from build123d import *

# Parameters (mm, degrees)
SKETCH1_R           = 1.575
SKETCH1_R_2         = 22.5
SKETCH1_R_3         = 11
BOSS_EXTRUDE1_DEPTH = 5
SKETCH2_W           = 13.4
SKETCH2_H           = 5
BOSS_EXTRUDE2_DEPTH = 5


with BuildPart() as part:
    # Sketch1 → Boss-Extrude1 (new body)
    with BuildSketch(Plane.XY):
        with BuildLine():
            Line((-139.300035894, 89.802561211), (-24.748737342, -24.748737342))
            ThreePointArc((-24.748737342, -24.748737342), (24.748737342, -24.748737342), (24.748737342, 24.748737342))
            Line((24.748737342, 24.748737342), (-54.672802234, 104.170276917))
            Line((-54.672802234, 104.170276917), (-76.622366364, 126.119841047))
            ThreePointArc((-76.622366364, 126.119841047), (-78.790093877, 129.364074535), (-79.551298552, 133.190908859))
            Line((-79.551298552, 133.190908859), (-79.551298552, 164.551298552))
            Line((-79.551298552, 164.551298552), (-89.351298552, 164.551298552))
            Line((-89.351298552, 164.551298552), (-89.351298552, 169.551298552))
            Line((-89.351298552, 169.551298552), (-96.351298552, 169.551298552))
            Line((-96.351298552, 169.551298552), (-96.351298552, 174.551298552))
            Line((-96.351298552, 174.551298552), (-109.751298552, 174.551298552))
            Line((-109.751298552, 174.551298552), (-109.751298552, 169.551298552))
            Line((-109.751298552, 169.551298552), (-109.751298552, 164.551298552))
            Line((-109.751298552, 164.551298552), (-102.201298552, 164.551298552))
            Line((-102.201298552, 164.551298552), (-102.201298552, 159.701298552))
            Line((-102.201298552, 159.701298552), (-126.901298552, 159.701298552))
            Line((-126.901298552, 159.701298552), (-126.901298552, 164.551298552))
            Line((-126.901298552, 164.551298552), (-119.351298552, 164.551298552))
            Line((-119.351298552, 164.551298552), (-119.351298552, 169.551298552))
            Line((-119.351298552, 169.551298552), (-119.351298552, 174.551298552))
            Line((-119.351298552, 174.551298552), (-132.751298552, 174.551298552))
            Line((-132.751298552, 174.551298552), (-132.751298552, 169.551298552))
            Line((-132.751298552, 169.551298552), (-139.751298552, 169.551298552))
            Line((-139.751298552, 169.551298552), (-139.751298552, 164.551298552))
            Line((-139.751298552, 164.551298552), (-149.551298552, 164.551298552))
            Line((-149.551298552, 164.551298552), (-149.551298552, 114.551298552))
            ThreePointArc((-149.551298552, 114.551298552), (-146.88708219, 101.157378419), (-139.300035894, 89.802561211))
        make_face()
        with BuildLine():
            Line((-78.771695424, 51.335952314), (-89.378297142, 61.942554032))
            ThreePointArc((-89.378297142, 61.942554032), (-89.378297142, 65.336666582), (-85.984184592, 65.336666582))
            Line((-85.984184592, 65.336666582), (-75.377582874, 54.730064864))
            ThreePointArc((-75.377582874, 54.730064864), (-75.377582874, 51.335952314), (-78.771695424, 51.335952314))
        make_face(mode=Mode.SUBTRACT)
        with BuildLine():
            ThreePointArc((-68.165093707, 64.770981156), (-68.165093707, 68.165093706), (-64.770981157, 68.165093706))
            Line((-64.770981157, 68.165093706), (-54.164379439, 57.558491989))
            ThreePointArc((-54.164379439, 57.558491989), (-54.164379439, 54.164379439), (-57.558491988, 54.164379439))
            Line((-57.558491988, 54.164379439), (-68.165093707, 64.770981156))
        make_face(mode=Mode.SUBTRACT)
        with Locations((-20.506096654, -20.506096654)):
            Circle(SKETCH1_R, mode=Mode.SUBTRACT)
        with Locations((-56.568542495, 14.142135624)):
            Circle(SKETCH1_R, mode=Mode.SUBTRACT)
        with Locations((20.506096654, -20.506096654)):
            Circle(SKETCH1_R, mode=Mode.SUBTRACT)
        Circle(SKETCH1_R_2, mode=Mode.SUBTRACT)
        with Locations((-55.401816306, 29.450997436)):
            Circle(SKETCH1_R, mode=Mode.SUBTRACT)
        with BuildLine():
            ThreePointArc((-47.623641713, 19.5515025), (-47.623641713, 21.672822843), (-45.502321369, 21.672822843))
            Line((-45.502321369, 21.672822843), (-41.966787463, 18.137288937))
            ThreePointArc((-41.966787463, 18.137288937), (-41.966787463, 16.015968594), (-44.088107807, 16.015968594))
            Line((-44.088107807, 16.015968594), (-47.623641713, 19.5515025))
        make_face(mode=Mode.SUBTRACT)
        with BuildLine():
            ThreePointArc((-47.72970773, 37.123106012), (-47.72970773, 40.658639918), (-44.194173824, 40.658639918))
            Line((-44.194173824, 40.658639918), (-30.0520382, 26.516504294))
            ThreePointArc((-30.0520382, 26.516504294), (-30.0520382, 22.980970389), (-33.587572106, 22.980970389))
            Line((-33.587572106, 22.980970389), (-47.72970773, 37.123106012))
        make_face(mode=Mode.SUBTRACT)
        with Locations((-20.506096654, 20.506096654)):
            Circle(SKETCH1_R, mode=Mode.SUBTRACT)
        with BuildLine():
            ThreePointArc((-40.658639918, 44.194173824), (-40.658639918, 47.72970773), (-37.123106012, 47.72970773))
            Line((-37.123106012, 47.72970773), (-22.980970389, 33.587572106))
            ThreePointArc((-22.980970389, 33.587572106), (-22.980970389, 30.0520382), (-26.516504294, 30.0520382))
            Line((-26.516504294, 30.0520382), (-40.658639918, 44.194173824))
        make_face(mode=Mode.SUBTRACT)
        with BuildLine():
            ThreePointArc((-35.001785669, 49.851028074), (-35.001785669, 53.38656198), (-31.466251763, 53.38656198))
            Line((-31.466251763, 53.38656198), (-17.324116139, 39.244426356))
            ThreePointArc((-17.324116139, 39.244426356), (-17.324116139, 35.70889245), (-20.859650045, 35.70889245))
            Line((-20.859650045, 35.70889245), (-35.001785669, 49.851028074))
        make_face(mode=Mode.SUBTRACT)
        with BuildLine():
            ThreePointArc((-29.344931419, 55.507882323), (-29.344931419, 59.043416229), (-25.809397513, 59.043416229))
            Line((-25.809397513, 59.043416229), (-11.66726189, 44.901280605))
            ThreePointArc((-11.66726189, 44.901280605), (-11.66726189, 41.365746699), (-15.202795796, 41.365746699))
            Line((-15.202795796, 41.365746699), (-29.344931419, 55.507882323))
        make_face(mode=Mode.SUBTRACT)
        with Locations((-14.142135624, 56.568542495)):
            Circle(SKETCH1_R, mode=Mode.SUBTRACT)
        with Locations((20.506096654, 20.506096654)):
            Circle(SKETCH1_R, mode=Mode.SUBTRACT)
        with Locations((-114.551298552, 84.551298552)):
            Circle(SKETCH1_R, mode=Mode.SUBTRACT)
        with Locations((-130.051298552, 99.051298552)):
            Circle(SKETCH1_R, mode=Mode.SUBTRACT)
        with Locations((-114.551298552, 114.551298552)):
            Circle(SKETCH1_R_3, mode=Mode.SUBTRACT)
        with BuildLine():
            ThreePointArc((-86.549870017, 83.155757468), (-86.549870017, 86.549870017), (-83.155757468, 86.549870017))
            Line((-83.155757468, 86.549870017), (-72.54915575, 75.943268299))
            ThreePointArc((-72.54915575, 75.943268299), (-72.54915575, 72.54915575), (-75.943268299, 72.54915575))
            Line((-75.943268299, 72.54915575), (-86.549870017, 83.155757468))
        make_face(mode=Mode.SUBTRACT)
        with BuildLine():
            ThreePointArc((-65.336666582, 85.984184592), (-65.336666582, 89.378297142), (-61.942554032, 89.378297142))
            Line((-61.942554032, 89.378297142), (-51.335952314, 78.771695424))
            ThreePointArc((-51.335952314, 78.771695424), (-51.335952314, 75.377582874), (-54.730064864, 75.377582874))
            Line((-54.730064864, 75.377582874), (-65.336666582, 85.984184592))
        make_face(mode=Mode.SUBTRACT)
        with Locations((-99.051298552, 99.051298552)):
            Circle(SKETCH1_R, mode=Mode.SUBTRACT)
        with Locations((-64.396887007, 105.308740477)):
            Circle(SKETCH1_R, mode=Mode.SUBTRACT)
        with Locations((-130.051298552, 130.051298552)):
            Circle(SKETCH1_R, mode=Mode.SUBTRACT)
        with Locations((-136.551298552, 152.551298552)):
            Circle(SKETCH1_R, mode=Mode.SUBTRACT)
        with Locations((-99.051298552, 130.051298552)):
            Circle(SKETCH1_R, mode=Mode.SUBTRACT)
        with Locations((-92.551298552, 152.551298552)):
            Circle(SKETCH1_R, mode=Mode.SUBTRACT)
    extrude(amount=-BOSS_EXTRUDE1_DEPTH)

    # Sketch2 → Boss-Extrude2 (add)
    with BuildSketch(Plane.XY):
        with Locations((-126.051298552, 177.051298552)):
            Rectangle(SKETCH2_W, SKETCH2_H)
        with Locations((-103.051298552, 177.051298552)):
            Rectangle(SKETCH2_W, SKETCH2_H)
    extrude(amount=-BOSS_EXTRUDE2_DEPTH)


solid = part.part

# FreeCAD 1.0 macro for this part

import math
import FreeCAD as App
import Part
import Sketcher

V = App.Vector
Q = App.Units.Quantity

doc = App.newDocument("Part")
body = doc.addObject("PartDesign::Body", "Body")

sketch1 = doc.addObject("Sketcher::SketchObject", "Sketch")
body.addObject(sketch1)
sketch1.AttachmentSupport = (doc.XY_Plane, [""])
sketch1.MapMode = "FlatFace"
sketch1.addGeometry([
    Part.LineSegment(V(-139.3, 89.8, 0), V(-24.7, -24.7, 0)),
    Part.ArcOfCircle(Part.Circle(V(0, 0, 0), V(0, 0, 1), 35), math.radians(-135), math.radians(45)),
    Part.LineSegment(V(24.7, 24.7, 0), V(-54.7, 104.2, 0)),
    Part.LineSegment(V(-54.7, 104.2, 0), V(-76.6, 126.1, 0)),
    Part.ArcOfCircle(Part.Circle(V(-69.6, 133.2, 0), V(0, 0, 1), 10), math.radians(180), math.radians(225)),
    Part.LineSegment(V(-79.6, 133.2, 0), V(-79.6, 164.6, 0)),
    Part.LineSegment(V(-79.6, 164.6, 0), V(-89.4, 164.6, 0)),
    Part.LineSegment(V(-89.4, 164.6, 0), V(-89.4, 169.6, 0)),
    Part.LineSegment(V(-89.4, 169.6, 0), V(-96.4, 169.6, 0)),
    Part.LineSegment(V(-96.4, 169.6, 0), V(-96.4, 174.6, 0)),
    Part.LineSegment(V(-96.4, 174.6, 0), V(-109.8, 174.6, 0)),
    Part.LineSegment(V(-109.8, 174.6, 0), V(-109.8, 164.6, 0)),
    Part.LineSegment(V(-109.8, 164.6, 0), V(-102.2, 164.6, 0)),
    Part.LineSegment(V(-102.2, 164.6, 0), V(-102.2, 159.7, 0)),
    Part.LineSegment(V(-102.2, 159.7, 0), V(-126.9, 159.7, 0)),
    Part.LineSegment(V(-126.9, 159.7, 0), V(-126.9, 164.6, 0)),
    Part.LineSegment(V(-126.9, 164.6, 0), V(-119.4, 164.6, 0)),
    Part.LineSegment(V(-119.4, 164.6, 0), V(-119.4, 174.6, 0)),
    Part.LineSegment(V(-119.4, 174.6, 0), V(-132.8, 174.6, 0)),
    Part.LineSegment(V(-132.8, 174.6, 0), V(-132.8, 169.6, 0)),
    Part.LineSegment(V(-132.8, 169.6, 0), V(-139.8, 169.6, 0)),
    Part.LineSegment(V(-139.8, 169.6, 0), V(-139.8, 164.6, 0)),
    Part.LineSegment(V(-139.8, 164.6, 0), V(-149.6, 164.6, 0)),
    Part.LineSegment(V(-149.6, 164.6, 0), V(-149.6, 114.6, 0)),
    Part.ArcOfCircle(Part.Circle(V(-114.6, 114.6, 0), V(0, 0, 1), 35), math.radians(180), math.radians(225)),
    Part.ArcOfCircle(Part.Circle(V(-77.1, 53, 0), V(0, 0, 1), 2.4), math.radians(-135), math.radians(45)),
    Part.LineSegment(V(-78.8, 51.3, 0), V(-89.4, 61.9, 0)),
    Part.ArcOfCircle(Part.Circle(V(-87.7, 63.6, 0), V(0, 0, 1), 2.4), math.radians(45), math.radians(225)),
    Part.LineSegment(V(-86, 65.3, 0), V(-75.4, 54.7, 0)),
    Part.LineSegment(V(-57.6, 54.2, 0), V(-68.2, 64.8, 0)),
    Part.ArcOfCircle(Part.Circle(V(-66.5, 66.5, 0), V(0, 0, 1), 2.4), math.radians(45), math.radians(225)),
    Part.LineSegment(V(-64.8, 68.2, 0), V(-54.2, 57.6, 0)),
    Part.ArcOfCircle(Part.Circle(V(-55.9, 55.9, 0), V(0, 0, 1), 2.4), math.radians(-135), math.radians(45)),
    Part.Circle(V(-20.5, -20.5, 0), V(0, 0, 1), 1.6),
    Part.Circle(V(-56.6, 14.1, 0), V(0, 0, 1), 1.6),
    Part.LineSegment(V(-44.1, 16, 0), V(-47.6, 19.6, 0)),
    Part.ArcOfCircle(Part.Circle(V(-46.6, 20.6, 0), V(0, 0, 1), 1.5), math.radians(45), math.radians(225)),
    Part.LineSegment(V(-45.5, 21.7, 0), V(-42, 18.1, 0)),
    Part.ArcOfCircle(Part.Circle(V(-43, 17.1, 0), V(0, 0, 1), 1.5), math.radians(-135), math.radians(45)),
    Part.Circle(V(-20.5, 20.5, 0), V(0, 0, 1), 1.6),
    Part.Circle(V(20.5, -20.5, 0), V(0, 0, 1), 1.6),
    Part.Circle(V(0, 0, 0), V(0, 0, 1), 22.5),
    Part.Circle(V(20.5, 20.5, 0), V(0, 0, 1), 1.6),
    Part.Circle(V(-55.4, 29.5, 0), V(0, 0, 1), 1.6),
    Part.LineSegment(V(-33.6, 23, 0), V(-47.7, 37.1, 0)),
    Part.ArcOfCircle(Part.Circle(V(-46, 38.9, 0), V(0, 0, 1), 2.5), math.radians(45), math.radians(225)),
    Part.LineSegment(V(-44.2, 40.7, 0), V(-30.1, 26.5, 0)),
    Part.ArcOfCircle(Part.Circle(V(-31.8, 24.7, 0), V(0, 0, 1), 2.5), math.radians(-135), math.radians(45)),
    Part.LineSegment(V(-26.5, 30.1, 0), V(-40.7, 44.2, 0)),
    Part.ArcOfCircle(Part.Circle(V(-38.9, 46, 0), V(0, 0, 1), 2.5), math.radians(45), math.radians(225)),
    Part.LineSegment(V(-37.1, 47.7, 0), V(-23, 33.6, 0)),
    Part.ArcOfCircle(Part.Circle(V(-24.7, 31.8, 0), V(0, 0, 1), 2.5), math.radians(-135), math.radians(45)),
    Part.LineSegment(V(-20.9, 35.7, 0), V(-35, 49.9, 0)),
    Part.ArcOfCircle(Part.Circle(V(-33.2, 51.6, 0), V(0, 0, 1), 2.5), math.radians(45), math.radians(225)),
    Part.LineSegment(V(-31.5, 53.4, 0), V(-17.3, 39.2, 0)),
    Part.ArcOfCircle(Part.Circle(V(-19.1, 37.5, 0), V(0, 0, 1), 2.5), math.radians(-135), math.radians(45)),
    Part.LineSegment(V(-15.2, 41.4, 0), V(-29.3, 55.5, 0)),
    Part.ArcOfCircle(Part.Circle(V(-27.6, 57.3, 0), V(0, 0, 1), 2.5), math.radians(45), math.radians(225)),
    Part.LineSegment(V(-25.8, 59, 0), V(-11.7, 44.9, 0)),
    Part.ArcOfCircle(Part.Circle(V(-13.4, 43.1, 0), V(0, 0, 1), 2.5), math.radians(-135), math.radians(45)),
    Part.Circle(V(-14.1, 56.6, 0), V(0, 0, 1), 1.6),
    Part.Circle(V(-114.6, 84.6, 0), V(0, 0, 1), 1.6),
    Part.Circle(V(-130.1, 99.1, 0), V(0, 0, 1), 1.6),
    Part.Circle(V(-99.1, 99.1, 0), V(0, 0, 1), 1.6),
    Part.LineSegment(V(-75.9, 72.5, 0), V(-86.5, 83.2, 0)),
    Part.ArcOfCircle(Part.Circle(V(-84.9, 84.9, 0), V(0, 0, 1), 2.4), math.radians(45), math.radians(225)),
    Part.LineSegment(V(-83.2, 86.5, 0), V(-72.5, 75.9, 0)),
    Part.ArcOfCircle(Part.Circle(V(-74.2, 74.2, 0), V(0, 0, 1), 2.4), math.radians(-135), math.radians(45)),
    Part.LineSegment(V(-54.7, 75.4, 0), V(-65.3, 86, 0)),
    Part.ArcOfCircle(Part.Circle(V(-63.6, 87.7, 0), V(0, 0, 1), 2.4), math.radians(45), math.radians(225)),
    Part.LineSegment(V(-61.9, 89.4, 0), V(-51.3, 78.8, 0)),
    Part.ArcOfCircle(Part.Circle(V(-53, 77.1, 0), V(0, 0, 1), 2.4), math.radians(-135), math.radians(45)),
    Part.Circle(V(-64.4, 105.3, 0), V(0, 0, 1), 1.6),
    Part.Circle(V(-130.1, 130.1, 0), V(0, 0, 1), 1.6),
    Part.Circle(V(-114.6, 114.6, 0), V(0, 0, 1), 11),
    Part.Circle(V(-99.1, 130.1, 0), V(0, 0, 1), 1.6),
    Part.Circle(V(-136.6, 152.6, 0), V(0, 0, 1), 1.6),
    Part.Circle(V(-92.6, 152.6, 0), V(0, 0, 1), 1.6),
], False)
sketch1.addConstraint([
    Sketcher.Constraint("Tangent", 0, 2, 1, 1),
    Sketcher.Constraint("Tangent", 1, 2, 2, 1),
    Sketcher.Constraint("Coincident", 2, 2, 3, 1),
    Sketcher.Constraint("Tangent", 3, 2, 4, 2),
    Sketcher.Constraint("Tangent", 4, 1, 5, 1),
    Sketcher.Constraint("Coincident", 5, 2, 6, 1),
    Sketcher.Constraint("Coincident", 6, 2, 7, 1),
    Sketcher.Constraint("Coincident", 7, 2, 8, 1),
    Sketcher.Constraint("Coincident", 8, 2, 9, 1),
    Sketcher.Constraint("Coincident", 9, 2, 10, 1),
    Sketcher.Constraint("Coincident", 10, 2, 11, 1),
    Sketcher.Constraint("Coincident", 11, 2, 12, 1),
    Sketcher.Constraint("Coincident", 12, 2, 13, 1),
    Sketcher.Constraint("Coincident", 13, 2, 14, 1),
    Sketcher.Constraint("Coincident", 14, 2, 15, 1),
    Sketcher.Constraint("Coincident", 15, 2, 16, 1),
    Sketcher.Constraint("Coincident", 16, 2, 17, 1),
    Sketcher.Constraint("Coincident", 17, 2, 18, 1),
    Sketcher.Constraint("Coincident", 18, 2, 19, 1),
    Sketcher.Constraint("Coincident", 19, 2, 20, 1),
    Sketcher.Constraint("Coincident", 20, 2, 21, 1),
    Sketcher.Constraint("Coincident", 21, 2, 22, 1),
    Sketcher.Constraint("Coincident", 22, 2, 23, 1),
    Sketcher.Constraint("Tangent", 23, 2, 24, 1),
    Sketcher.Constraint("Tangent", 24, 2, 0, 1),
    Sketcher.Constraint("Tangent", 25, 1, 26, 1),
    Sketcher.Constraint("Tangent", 26, 2, 27, 2),
    Sketcher.Constraint("Tangent", 27, 1, 28, 1),
    Sketcher.Constraint("Tangent", 28, 2, 25, 2),
    Sketcher.Constraint("Tangent", 29, 2, 30, 2),
    Sketcher.Constraint("Tangent", 30, 1, 31, 1),
    Sketcher.Constraint("Tangent", 31, 2, 32, 2),
    Sketcher.Constraint("Tangent", 32, 1, 29, 1),
    Sketcher.Constraint("Tangent", 35, 2, 36, 2),
    Sketcher.Constraint("Tangent", 36, 1, 37, 1),
    Sketcher.Constraint("Tangent", 37, 2, 38, 2),
    Sketcher.Constraint("Tangent", 38, 1, 35, 1),
    Sketcher.Constraint("Tangent", 44, 2, 45, 2),
    Sketcher.Constraint("Tangent", 45, 1, 46, 1),
    Sketcher.Constraint("Tangent", 46, 2, 47, 2),
    Sketcher.Constraint("Tangent", 47, 1, 44, 1),
    Sketcher.Constraint("Tangent", 48, 2, 49, 2),
    Sketcher.Constraint("Tangent", 49, 1, 50, 1),
    Sketcher.Constraint("Tangent", 50, 2, 51, 2),
    Sketcher.Constraint("Tangent", 51, 1, 48, 1),
    Sketcher.Constraint("Tangent", 52, 2, 53, 2),
    Sketcher.Constraint("Tangent", 53, 1, 54, 1),
    Sketcher.Constraint("Tangent", 54, 2, 55, 2),
    Sketcher.Constraint("Tangent", 55, 1, 52, 1),
    Sketcher.Constraint("Tangent", 56, 2, 57, 2),
    Sketcher.Constraint("Tangent", 57, 1, 58, 1),
    Sketcher.Constraint("Tangent", 58, 2, 59, 2),
    Sketcher.Constraint("Tangent", 59, 1, 56, 1),
    Sketcher.Constraint("Tangent", 64, 2, 65, 2),
    Sketcher.Constraint("Tangent", 65, 1, 66, 1),
    Sketcher.Constraint("Tangent", 66, 2, 67, 2),
    Sketcher.Constraint("Tangent", 67, 1, 64, 1),
    Sketcher.Constraint("Tangent", 68, 2, 69, 2),
    Sketcher.Constraint("Tangent", 69, 1, 70, 1),
    Sketcher.Constraint("Tangent", 70, 2, 71, 2),
    Sketcher.Constraint("Tangent", 71, 1, 68, 1),
    Sketcher.Constraint("Vertical", 5),
    Sketcher.Constraint("Horizontal", 6),
    Sketcher.Constraint("Vertical", 7),
    Sketcher.Constraint("Horizontal", 8),
    Sketcher.Constraint("Vertical", 9),
    Sketcher.Constraint("Horizontal", 10),
    Sketcher.Constraint("Vertical", 11),
    Sketcher.Constraint("Horizontal", 12),
    Sketcher.Constraint("Vertical", 13),
    Sketcher.Constraint("Horizontal", 14),
    Sketcher.Constraint("Vertical", 15),
    Sketcher.Constraint("Horizontal", 16),
    Sketcher.Constraint("Vertical", 17),
    Sketcher.Constraint("Horizontal", 18),
    Sketcher.Constraint("Vertical", 19),
    Sketcher.Constraint("Horizontal", 20),
    Sketcher.Constraint("Vertical", 21),
    Sketcher.Constraint("Horizontal", 22),
    Sketcher.Constraint("Vertical", 23),
    Sketcher.Constraint("Coincident", 1, 3, -1, 1),
    Sketcher.Constraint("Coincident", 41, 3, -1, 1),
    Sketcher.Constraint("Coincident", 74, 3, 24, 3),
    Sketcher.Constraint("Equal", 1, 24),
    Sketcher.Constraint("Equal", 25, 27),
    Sketcher.Constraint("Equal", 27, 30),
    Sketcher.Constraint("Equal", 30, 32),
    Sketcher.Constraint("Equal", 33, 34),
    Sketcher.Constraint("Equal", 36, 38),
    Sketcher.Constraint("Equal", 34, 39),
    Sketcher.Constraint("Equal", 39, 40),
    Sketcher.Constraint("Equal", 40, 42),
    Sketcher.Constraint("Equal", 42, 43),
    Sketcher.Constraint("Equal", 45, 47),
    Sketcher.Constraint("Equal", 47, 49),
    Sketcher.Constraint("Equal", 49, 51),
    Sketcher.Constraint("Equal", 51, 53),
    Sketcher.Constraint("Equal", 53, 55),
    Sketcher.Constraint("Equal", 55, 57),
    Sketcher.Constraint("Equal", 57, 59),
    Sketcher.Constraint("Equal", 43, 60),
    Sketcher.Constraint("Equal", 60, 61),
    Sketcher.Constraint("Equal", 61, 62),
    Sketcher.Constraint("Equal", 62, 63),
    Sketcher.Constraint("Equal", 32, 65),
    Sketcher.Constraint("Equal", 65, 67),
    Sketcher.Constraint("Equal", 67, 69),
    Sketcher.Constraint("Equal", 69, 71),
    Sketcher.Constraint("Equal", 63, 72),
    Sketcher.Constraint("Equal", 72, 73),
    Sketcher.Constraint("Equal", 73, 75),
    Sketcher.Constraint("Equal", 75, 76),
    Sketcher.Constraint("Equal", 76, 77),
    Sketcher.Constraint("Symmetric", 39, 3, 40, 3, -1, 1),
    Sketcher.Constraint("Symmetric", 33, 3, 42, 3, -1, 1),
    Sketcher.Constraint("Symmetric", 33, 3, 40, 3, -2),
    Sketcher.Constraint("Parallel", 0, 2),
    Sketcher.Constraint("Parallel", 2, 3),
    Sketcher.Constraint("Parallel", 3, 26),
    Sketcher.Constraint("Parallel", 28, 29),
    Sketcher.Constraint("Parallel", 31, 35),
    Sketcher.Constraint("Parallel", 37, 44),
    Sketcher.Constraint("Parallel", 46, 48),
    Sketcher.Constraint("Parallel", 50, 52),
    Sketcher.Constraint("Parallel", 54, 56),
    Sketcher.Constraint("Parallel", 58, 64),
    Sketcher.Constraint("Parallel", 66, 68),
    Sketcher.Constraint("Horizontal", 62, 3, 63, 3),
    Sketcher.Constraint("Horizontal", 73, 3, 75, 3),
    Sketcher.Constraint("Horizontal", 76, 3, 77, 3),
    Sketcher.Constraint("Horizontal", 47, 3, 1, 2),
    Sketcher.Constraint("Horizontal", 6, 2, 11, 2),
    Sketcher.Constraint("Horizontal", 12, 2, 15, 2),
    Sketcher.Constraint("Horizontal", 10, 2, 17, 2),
    Sketcher.Constraint("Horizontal", 8, 2, 19, 2),
    Sketcher.Constraint("Horizontal", 16, 2, 21, 2),
    Sketcher.Constraint("Vertical", 24, 3, 61, 3),
    Sketcher.Constraint("Vertical", 62, 3, 73, 3),
    Sketcher.Constraint("Vertical", 63, 3, 75, 3),
    Sketcher.Constraint("Vertical", 51, 3, 0, 2),
    Sketcher.Constraint("Equal", 12, 16),
    Sketcher.Constraint("Equal", 10, 18),
    Sketcher.Constraint("Equal", 8, 20),
    Sketcher.Constraint("Equal", 6, 22),
    Sketcher.Constraint("Equal", 7, 9),
    Sketcher.Constraint("Equal", 28, 29),
    Sketcher.Constraint("Equal", 46, 48),
    Sketcher.Constraint("Equal", 50, 52),
    Sketcher.Constraint("Equal", 54, 56),
    Sketcher.Constraint("Equal", 31, 64),
    Sketcher.Constraint("Equal", 66, 68),
    Sketcher.Constraint("Diameter", 41, 45.0),
    Sketcher.Constraint("Diameter", 74, 22.0),
    Sketcher.Constraint("Radius", 1, 35.0),
    Sketcher.Constraint("Radius", 4, 10.0),
    Sketcher.Constraint("Radius", 25, 2.4),
    Sketcher.Constraint("Radius", 36, 1.5),
    Sketcher.Constraint("Radius", 45, 2.5),
    Sketcher.Constraint("Diameter", 33, 3.15),
    Sketcher.Constraint("DistanceX", 8, 2, 8, 1, 7.0),
    Sketcher.Constraint("DistanceY", 7, 1, 7, 2, 5.0),
    Sketcher.Constraint("DistanceY", 23, 2, 23, 1, 50.0),
    Sketcher.Constraint("Angle", 0, Q("-45 deg")),
    Sketcher.Constraint("Distance", 0, 162.0),
    Sketcher.Constraint("Distance", 26, 15.0),
    Sketcher.Constraint("Distance", 35, 5.0),
    Sketcher.Constraint("Distance", 44, 20.0),
    Sketcher.Constraint("DistanceX", 6, 2, 6, 1, 9.8),
    Sketcher.Constraint("DistanceX", 10, 2, 10, 1, 13.4),
    Sketcher.Constraint("DistanceX", 14, 2, 14, 1, 24.7),
    Sketcher.Constraint("DistanceX", 12, 1, 12, 2, 7.55),
    Sketcher.Constraint("DistanceY", 13, 2, 13, 1, 4.85),
    Sketcher.Constraint("DistanceY", -1, 1, 61, 3, 84.551299),
    Sketcher.Constraint("DistanceX", 62, 3, -1, 1, 130.051299),
    Sketcher.Constraint("DistanceY", -1, 1, 62, 3, 99.051299),
    Sketcher.Constraint("DistanceX", 63, 3, -1, 1, 99.051299),
    Sketcher.Constraint("DistanceY", -1, 1, 73, 3, 130.051299),
    Sketcher.Constraint("DistanceX", 76, 3, -1, 1, 136.551299),
    Sketcher.Constraint("DistanceY", -1, 1, 76, 3, 152.551299),
    Sketcher.Constraint("DistanceX", 77, 3, -1, 1, 92.551299),
    Sketcher.Constraint("Distance", 2, 112.319018),
    Sketcher.Constraint("DistanceX", 25, 3, -1, 1, 77.074639),
    Sketcher.Constraint("DistanceY", -1, 1, 25, 3, 53.033009),
    Sketcher.Constraint("DistanceX", 36, 3, -1, 1, 46.562982),
    Sketcher.Constraint("DistanceY", -1, 1, 38, 3, 17.076629),
    Sketcher.Constraint("DistanceX", 45, 3, -1, 1, 45.961941),
    Sketcher.Constraint("DistanceY", -1, 1, 49, 3, 45.961941),
    Sketcher.Constraint("DistanceX", 53, 3, -1, 1, 33.234019),
    Sketcher.Constraint("DistanceY", -1, 1, 55, 3, 37.476659),
    Sketcher.Constraint("DistanceY", -1, 1, 57, 3, 57.275649),
    Sketcher.Constraint("DistanceX", 59, 3, -1, 1, 13.435029),
    Sketcher.Constraint("DistanceX", 69, 3, -1, 1, 63.63961),
    Sketcher.Constraint("DistanceY", -1, 1, 69, 3, 87.681241),
    Sketcher.Constraint("DistanceY", -1, 1, 72, 3, 105.30874),
    Sketcher.Constraint("DistanceY", -1, 1, 29, 2, 64.770981),
    Sketcher.Constraint("DistanceX", 30, 1, -1, 1, 64.770981),
    Sketcher.Constraint("DistanceX", 64, 2, -1, 1, 86.54987),
    Sketcher.Constraint("DistanceY", -1, 1, 65, 1, 86.54987),
    Sketcher.Constraint("DistanceX", 33, 3, -1, 1, 20.506097),
    Sketcher.Constraint("DistanceY", 33, 3, -1, 1, 20.506097),
    Sketcher.Constraint("DistanceX", 34, 3, -1, 1, 56.568542),
    Sketcher.Constraint("DistanceY", -1, 1, 34, 3, 14.142136),
    Sketcher.Constraint("DistanceX", 43, 3, -1, 1, 55.401816),
    Sketcher.Constraint("DistanceY", -1, 1, 43, 3, 29.450997),
    Sketcher.Constraint("DistanceX", 60, 3, -1, 1, 14.142136),
    Sketcher.Constraint("DistanceY", -1, 1, 60, 3, 56.568542),
    Sketcher.Constraint("DistanceX", 72, 3, -1, 1, 64.396887),
])
pad1 = doc.addObject("PartDesign::Pad", "Pad")
body.addObject(pad1)
pad1.Profile = sketch1
pad1.Length = 5
pad1.Reversed = True

sketch2 = doc.addObject("Sketcher::SketchObject", "Sketch001")
body.addObject(sketch2)
sketch2.AttachmentSupport = (doc.XY_Plane, [""])
sketch2.MapMode = "FlatFace"
sketch2.addGeometry([
    Part.LineSegment(V(-133, 180, 0), V(-133, 175, 0)),
    Part.LineSegment(V(-133, 175, 0), V(-119, 175, 0)),
    Part.LineSegment(V(-119, 175, 0), V(-119, 180, 0)),
    Part.LineSegment(V(-119, 180, 0), V(-133, 180, 0)),
    Part.LineSegment(V(-110, 180, 0), V(-110, 175, 0)),
    Part.LineSegment(V(-110, 175, 0), V(-96, 175, 0)),
    Part.LineSegment(V(-96, 175, 0), V(-96, 180, 0)),
    Part.LineSegment(V(-96, 180, 0), V(-110, 180, 0)),
], False)
sketch2.addConstraint([
    Sketcher.Constraint("Coincident", 0, 2, 1, 1),
    Sketcher.Constraint("Coincident", 1, 2, 2, 1),
    Sketcher.Constraint("Coincident", 2, 2, 3, 1),
    Sketcher.Constraint("Coincident", 3, 2, 0, 1),
    Sketcher.Constraint("Coincident", 4, 2, 5, 1),
    Sketcher.Constraint("Coincident", 5, 2, 6, 1),
    Sketcher.Constraint("Coincident", 6, 2, 7, 1),
    Sketcher.Constraint("Coincident", 7, 2, 4, 1),
    Sketcher.Constraint("Vertical", 0),
    Sketcher.Constraint("Horizontal", 1),
    Sketcher.Constraint("Vertical", 2),
    Sketcher.Constraint("Horizontal", 3),
    Sketcher.Constraint("Vertical", 4),
    Sketcher.Constraint("Horizontal", 5),
    Sketcher.Constraint("Vertical", 6),
    Sketcher.Constraint("Horizontal", 7),
    Sketcher.Constraint("Horizontal", 1, 2, 4, 2),
    Sketcher.Constraint("Horizontal", 3, 2, 6, 2),
    Sketcher.Constraint("Equal", 3, 5),
    Sketcher.Constraint("DistanceY", 0, 2, 0, 1, 5.0),
    Sketcher.Constraint("DistanceX", 1, 1, 1, 2, 13.4),
    Sketcher.Constraint("DistanceX", 0, 2, 4, 2, 23.0),
    Sketcher.Constraint("DistanceX", 0, 2, -1, 1, 132.751299),
    Sketcher.Constraint("DistanceY", -1, 1, 0, 2, 174.551299),
])
pad2 = doc.addObject("PartDesign::Pad", "Pad001")
body.addObject(pad2)
pad2.Profile = sketch2
pad2.Length = 5
pad2.Reversed = True

doc.recompute()
